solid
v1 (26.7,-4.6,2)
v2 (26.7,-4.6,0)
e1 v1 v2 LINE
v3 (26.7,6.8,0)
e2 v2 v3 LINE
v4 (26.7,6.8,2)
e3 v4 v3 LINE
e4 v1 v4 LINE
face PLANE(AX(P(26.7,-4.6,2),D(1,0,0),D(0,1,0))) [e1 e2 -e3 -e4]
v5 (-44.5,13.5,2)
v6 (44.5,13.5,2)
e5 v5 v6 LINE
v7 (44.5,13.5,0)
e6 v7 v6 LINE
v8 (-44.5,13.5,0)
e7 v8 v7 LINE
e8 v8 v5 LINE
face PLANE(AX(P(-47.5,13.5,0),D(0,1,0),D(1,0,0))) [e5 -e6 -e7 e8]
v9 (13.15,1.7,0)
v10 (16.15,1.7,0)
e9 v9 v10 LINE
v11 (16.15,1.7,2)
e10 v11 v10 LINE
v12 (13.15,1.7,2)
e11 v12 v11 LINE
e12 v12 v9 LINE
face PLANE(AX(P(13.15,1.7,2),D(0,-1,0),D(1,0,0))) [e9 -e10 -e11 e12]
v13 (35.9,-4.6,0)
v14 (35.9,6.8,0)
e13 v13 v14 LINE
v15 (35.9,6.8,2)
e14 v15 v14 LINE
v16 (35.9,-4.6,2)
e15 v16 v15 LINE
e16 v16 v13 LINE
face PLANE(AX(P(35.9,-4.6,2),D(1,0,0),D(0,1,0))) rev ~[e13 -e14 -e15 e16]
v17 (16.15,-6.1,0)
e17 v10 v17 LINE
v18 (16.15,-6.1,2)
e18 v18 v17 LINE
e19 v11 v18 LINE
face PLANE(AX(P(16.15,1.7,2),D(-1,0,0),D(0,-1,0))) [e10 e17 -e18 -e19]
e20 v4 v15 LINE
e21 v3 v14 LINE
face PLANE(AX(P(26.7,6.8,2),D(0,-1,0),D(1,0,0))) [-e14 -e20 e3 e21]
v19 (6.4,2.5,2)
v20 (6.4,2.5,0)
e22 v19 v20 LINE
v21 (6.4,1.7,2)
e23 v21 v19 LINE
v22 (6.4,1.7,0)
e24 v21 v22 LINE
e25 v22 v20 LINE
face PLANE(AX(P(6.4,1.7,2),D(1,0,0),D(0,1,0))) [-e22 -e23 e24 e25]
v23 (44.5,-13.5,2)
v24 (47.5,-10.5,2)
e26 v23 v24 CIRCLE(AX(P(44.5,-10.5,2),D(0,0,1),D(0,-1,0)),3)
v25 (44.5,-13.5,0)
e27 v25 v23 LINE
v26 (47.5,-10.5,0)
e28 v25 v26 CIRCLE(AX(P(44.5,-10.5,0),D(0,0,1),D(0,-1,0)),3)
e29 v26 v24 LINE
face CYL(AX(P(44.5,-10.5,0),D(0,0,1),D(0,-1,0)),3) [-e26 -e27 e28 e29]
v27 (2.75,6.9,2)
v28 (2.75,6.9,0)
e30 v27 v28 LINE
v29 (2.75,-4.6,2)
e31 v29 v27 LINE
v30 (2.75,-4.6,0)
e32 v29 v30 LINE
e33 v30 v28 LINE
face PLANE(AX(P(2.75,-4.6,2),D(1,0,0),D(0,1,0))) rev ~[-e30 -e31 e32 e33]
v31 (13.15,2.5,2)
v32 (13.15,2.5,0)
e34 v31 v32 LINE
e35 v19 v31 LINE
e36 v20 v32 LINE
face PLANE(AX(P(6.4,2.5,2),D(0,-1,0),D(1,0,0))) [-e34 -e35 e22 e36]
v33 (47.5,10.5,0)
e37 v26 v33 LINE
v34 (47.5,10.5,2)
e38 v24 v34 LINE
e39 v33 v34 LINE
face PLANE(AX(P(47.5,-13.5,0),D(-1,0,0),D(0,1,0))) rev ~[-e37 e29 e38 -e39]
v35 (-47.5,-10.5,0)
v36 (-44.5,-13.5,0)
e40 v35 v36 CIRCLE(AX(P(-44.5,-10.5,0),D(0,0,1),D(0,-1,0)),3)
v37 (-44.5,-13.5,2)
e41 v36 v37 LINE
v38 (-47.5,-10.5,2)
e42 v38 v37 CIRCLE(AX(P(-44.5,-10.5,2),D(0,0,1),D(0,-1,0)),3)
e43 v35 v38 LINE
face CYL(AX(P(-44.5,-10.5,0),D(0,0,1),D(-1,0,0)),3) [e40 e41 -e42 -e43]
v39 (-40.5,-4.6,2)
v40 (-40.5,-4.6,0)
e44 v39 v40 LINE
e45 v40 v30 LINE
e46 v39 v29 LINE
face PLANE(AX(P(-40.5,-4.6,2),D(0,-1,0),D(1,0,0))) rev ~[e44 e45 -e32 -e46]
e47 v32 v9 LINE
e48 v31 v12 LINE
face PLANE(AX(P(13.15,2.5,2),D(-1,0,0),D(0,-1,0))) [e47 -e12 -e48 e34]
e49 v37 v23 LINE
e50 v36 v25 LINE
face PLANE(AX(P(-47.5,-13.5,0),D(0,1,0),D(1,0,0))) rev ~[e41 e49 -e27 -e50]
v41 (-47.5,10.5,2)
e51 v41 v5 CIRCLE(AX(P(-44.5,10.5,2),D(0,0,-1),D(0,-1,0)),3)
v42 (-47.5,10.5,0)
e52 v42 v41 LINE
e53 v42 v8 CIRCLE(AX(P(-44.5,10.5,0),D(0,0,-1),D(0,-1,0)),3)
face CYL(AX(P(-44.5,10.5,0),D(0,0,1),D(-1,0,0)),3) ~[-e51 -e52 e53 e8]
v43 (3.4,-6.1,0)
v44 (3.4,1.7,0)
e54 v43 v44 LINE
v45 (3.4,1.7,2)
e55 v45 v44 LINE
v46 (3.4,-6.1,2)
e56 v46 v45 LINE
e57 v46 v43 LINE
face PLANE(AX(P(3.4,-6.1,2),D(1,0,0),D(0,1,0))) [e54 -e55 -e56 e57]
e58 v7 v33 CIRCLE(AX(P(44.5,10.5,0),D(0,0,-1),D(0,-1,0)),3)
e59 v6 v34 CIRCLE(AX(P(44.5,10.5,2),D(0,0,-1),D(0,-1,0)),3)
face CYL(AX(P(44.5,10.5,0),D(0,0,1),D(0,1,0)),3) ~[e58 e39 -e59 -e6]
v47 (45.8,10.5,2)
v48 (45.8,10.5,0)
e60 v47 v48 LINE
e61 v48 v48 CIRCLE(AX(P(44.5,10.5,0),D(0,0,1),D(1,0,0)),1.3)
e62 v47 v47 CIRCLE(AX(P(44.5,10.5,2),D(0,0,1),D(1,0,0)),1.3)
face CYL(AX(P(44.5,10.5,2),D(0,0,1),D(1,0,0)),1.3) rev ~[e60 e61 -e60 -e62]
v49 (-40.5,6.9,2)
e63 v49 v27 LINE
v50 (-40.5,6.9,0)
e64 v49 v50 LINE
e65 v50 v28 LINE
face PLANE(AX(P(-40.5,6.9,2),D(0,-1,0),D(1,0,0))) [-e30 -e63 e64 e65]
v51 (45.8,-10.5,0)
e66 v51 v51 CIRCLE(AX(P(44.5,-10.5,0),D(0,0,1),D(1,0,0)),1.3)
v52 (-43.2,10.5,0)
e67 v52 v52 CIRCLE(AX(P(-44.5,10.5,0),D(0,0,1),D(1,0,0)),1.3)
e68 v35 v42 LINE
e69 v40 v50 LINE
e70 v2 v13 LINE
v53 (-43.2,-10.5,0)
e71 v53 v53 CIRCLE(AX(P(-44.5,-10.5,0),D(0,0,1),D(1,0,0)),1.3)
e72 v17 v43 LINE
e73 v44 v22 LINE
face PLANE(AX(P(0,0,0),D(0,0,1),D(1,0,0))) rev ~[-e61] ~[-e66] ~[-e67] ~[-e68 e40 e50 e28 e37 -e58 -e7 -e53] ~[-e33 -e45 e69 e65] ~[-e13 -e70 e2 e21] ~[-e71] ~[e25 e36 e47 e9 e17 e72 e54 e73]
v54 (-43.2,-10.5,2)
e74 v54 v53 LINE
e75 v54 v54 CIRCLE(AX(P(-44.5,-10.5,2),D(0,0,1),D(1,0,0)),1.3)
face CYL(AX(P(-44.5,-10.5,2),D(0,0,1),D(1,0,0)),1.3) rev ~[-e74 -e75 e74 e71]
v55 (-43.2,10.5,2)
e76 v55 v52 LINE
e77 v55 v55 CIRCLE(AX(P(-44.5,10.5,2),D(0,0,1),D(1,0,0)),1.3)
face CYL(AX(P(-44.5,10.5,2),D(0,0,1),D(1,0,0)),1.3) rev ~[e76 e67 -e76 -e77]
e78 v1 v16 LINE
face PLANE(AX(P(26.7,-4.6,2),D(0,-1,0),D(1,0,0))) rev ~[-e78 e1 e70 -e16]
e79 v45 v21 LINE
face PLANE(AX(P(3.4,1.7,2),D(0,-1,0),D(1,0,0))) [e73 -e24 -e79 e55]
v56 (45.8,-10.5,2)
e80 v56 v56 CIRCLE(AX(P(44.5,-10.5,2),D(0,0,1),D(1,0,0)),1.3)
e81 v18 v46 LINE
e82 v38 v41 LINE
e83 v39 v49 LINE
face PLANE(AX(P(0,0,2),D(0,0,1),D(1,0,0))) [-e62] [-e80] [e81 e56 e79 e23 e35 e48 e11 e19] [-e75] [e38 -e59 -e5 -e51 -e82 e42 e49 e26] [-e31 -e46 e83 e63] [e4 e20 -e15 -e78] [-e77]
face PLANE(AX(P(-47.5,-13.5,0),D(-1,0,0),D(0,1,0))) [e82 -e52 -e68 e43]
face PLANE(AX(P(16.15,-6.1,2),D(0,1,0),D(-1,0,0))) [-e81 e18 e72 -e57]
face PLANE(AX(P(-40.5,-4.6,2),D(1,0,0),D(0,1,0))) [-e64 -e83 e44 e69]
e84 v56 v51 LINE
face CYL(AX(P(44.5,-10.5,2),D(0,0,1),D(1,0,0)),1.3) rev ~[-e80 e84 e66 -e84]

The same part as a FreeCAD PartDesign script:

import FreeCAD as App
import Part
import Sketcher


def edges_at(feature, points):
    """Names of the edges that pass closest to the given points."""
    edges = feature.Shape.Edges
    near = lambda p: min(range(len(edges)), key=lambda i: edges[i].distToShape(Part.Vertex(*p))[0])
    return sorted({f"Edge{near(p) + 1}" for p in points})

doc = App.newDocument("Part")
params = doc.addObject("Spreadsheet::Sheet", "Params")
for row, (alias, value) in enumerate([
    ("sketch1_width", "95 mm"),
    ("sketch1_height", "27 mm"),
    ("pad1_length", "2 mm"),
    ("sketch2_diameter", "2.6 mm"),
    ("pocket1_length", "2 mm"),
    ("fillet_radius", "3 mm"),
    ("sketch3_width", "9.2 mm"),
    ("sketch3_height", "11.4 mm"),
    ("pocket2_length", "2 mm"),
    ("sketch4_height", "11.5 mm"),
    ("sketch4_width", "43.25 mm"),
    ("pocket3_length", "2 mm"),
    ("sketch5_width", "3 mm"),
    ("sketch5_height", "7.8 mm"),
    ("sketch5_height2", "0.8 mm"),
    ("sketch5_width2", "6.75 mm"),
    ("pocket4_length", "2 mm"),
], start=1):
    params.set(f"A{row}", alias)
    params.set(f"B{row}", "=" + value)
    params.setAlias(f"B{row}", alias)

body = doc.addObject("PartDesign::Body", "Body")

# Sketch on XY plane
sketch1 = body.newObject("Sketcher::SketchObject", "Sketch")
sketch1.AttachmentSupport = (doc.getObject("XY_Plane"), [""])
sketch1.MapMode = "FlatFace"
sketch1.addGeometry([
    Part.LineSegment(App.Vector(-48, 14, 0), App.Vector(-48, -14, 0)),
    Part.LineSegment(App.Vector(-48, -14, 0), App.Vector(48, -14, 0)),
    Part.LineSegment(App.Vector(48, -14, 0), App.Vector(48, 14, 0)),
    Part.LineSegment(App.Vector(48, 14, 0), App.Vector(-48, 14, 0)),
], False)
sketch1.addConstraint([
    Sketcher.Constraint("Coincident", 0, 2, 1, 1),
    Sketcher.Constraint("Coincident", 1, 2, 2, 1),
    Sketcher.Constraint("Coincident", 2, 2, 3, 1),
    Sketcher.Constraint("Coincident", 3, 2, 0, 1),
    Sketcher.Constraint("Vertical", 0),
    Sketcher.Constraint("Horizontal", 1),
    Sketcher.Constraint("Vertical", 2),
    Sketcher.Constraint("Horizontal", 3),
    Sketcher.Constraint("Symmetric", 0, 2, 2, 2, -1, 1),
    Sketcher.Constraint("DistanceX", 1, 1, 1, 2, 95.0),
    Sketcher.Constraint("DistanceY", 0, 2, 0, 1, 27.0),
])
sketch1.setExpression("Constraints[9]", "Params.sketch1_width")
sketch1.setExpression("Constraints[10]", "Params.sketch1_height")
pad1 = body.newObject("PartDesign::Pad", "Pad")
pad1.Profile = sketch1
pad1.setExpression("Length", "Params.pad1_length")

# Sketch on XY plane
sketch2 = body.newObject("Sketcher::SketchObject", "Sketch001")
sketch2.AttachmentSupport = (doc.getObject("XY_Plane"), [""])
sketch2.MapMode = "FlatFace"
sketch2.AttachmentOffset = App.Placement(App.Vector(0, 0, 2), App.Rotation())
sketch2.addGeometry([
    Part.Circle(App.Vector(-44.5, 10.5, 0), App.Vector(0, 0, 1), 1.3),
    Part.Circle(App.Vector(44.5, 10.5, 0), App.Vector(0, 0, 1), 1.3),
    Part.Circle(App.Vector(44.5, -10.5, 0), App.Vector(0, 0, 1), 1.3),
    Part.Circle(App.Vector(-44.5, -10.5, 0), App.Vector(0, 0, 1), 1.3),
], False)
sketch2.addConstraint([
    Sketcher.Constraint("Equal", 0, 1),
    Sketcher.Constraint("Equal", 1, 2),
    Sketcher.Constraint("Equal", 2, 3),
    Sketcher.Constraint("Symmetric", 0, 3, 2, 3, -1, 1),
    Sketcher.Constraint("Symmetric", 1, 3, 3, 3, -1, 1),
    Sketcher.Constraint("Symmetric", 0, 3, 1, 3, -2),
    Sketcher.Constraint("Diameter", 0, 2.6),
    Sketcher.Constraint("DistanceX", 0, 3, 1, 3, 89.0),
    Sketcher.Constraint("DistanceY", 2, 3, 1, 3, 21.0),
])
sketch2.setExpression("Constraints[6]", "Params.sketch2_diameter")
pocket1 = body.newObject("PartDesign::Pocket", "Pocket")
pocket1.Profile = sketch2
pocket1.setExpression("Length", "Params.pocket1_length")
doc.recompute()

fillet = body.newObject("PartDesign::Fillet", "Fillet")
fillet.Base = (pocket1, edges_at(pocket1, [
    (-47.5, -13.5, 1),
    (47.5, -13.5, 1),
    (47.5, 13.5, 1),
    (-47.5, 13.5, 1),
]))
fillet.setExpression("Radius", "Params.fillet_radius")

# Sketch on XY plane
sketch3 = body.newObject("Sketcher::SketchObject", "Sketch002")
sketch3.AttachmentSupport = (doc.getObject("XY_Plane"), [""])
sketch3.MapMode = "FlatFace"
sketch3.AttachmentOffset = App.Placement(App.Vector(0, 0, 2), App.Rotation())
sketch3.addGeometry([
    Part.LineSegment(App.Vector(27, 7, 0), App.Vector(27, -5, 0)),
    Part.LineSegment(App.Vector(27, -5, 0), App.Vector(36, -5, 0)),
    Part.LineSegment(App.Vector(36, -5, 0), App.Vector(36, 7, 0)),
    Part.LineSegment(App.Vector(36, 7, 0), App.Vector(27, 7, 0)),
], False)
sketch3.addConstraint([
    Sketcher.Constraint("Coincident", 0, 2, 1, 1),
    Sketcher.Constraint("Coincident", 1, 2, 2, 1),
    Sketcher.Constraint("Coincident", 2, 2, 3, 1),
    Sketcher.Constraint("Coincident", 3, 2, 0, 1),
    Sketcher.Constraint("Vertical", 0),
    Sketcher.Constraint("Horizontal", 1),
    Sketcher.Constraint("Vertical", 2),
    Sketcher.Constraint("Horizontal", 3),
    Sketcher.Constraint("DistanceX", 1, 1, 1, 2, 9.2),
    Sketcher.Constraint("DistanceY", 0, 2, 0, 1, 11.4),
    Sketcher.Constraint("DistanceX", -1, 1, 0, 2, 26.7),
    Sketcher.Constraint("DistanceY", 0, 2, -1, 1, 4.6),
])
sketch3.setExpression("Constraints[8]", "Params.sketch3_width")
sketch3.setExpression("Constraints[9]", "Params.sketch3_height")
pocket2 = body.newObject("PartDesign::Pocket", "Pocket001")
pocket2.Profile = sketch3
pocket2.setExpression("Length", "Params.pocket2_length")

# Sketch on XY plane
sketch4 = body.newObject("Sketcher::SketchObject", "Sketch003")
sketch4.AttachmentSupport = (doc.getObject("XY_Plane"), [""])
sketch4.MapMode = "FlatFace"
sketch4.AttachmentOffset = App.Placement(App.Vector(0, 0, 2), App.Rotation())
sketch4.addGeometry([
    Part.LineSegment(App.Vector(-40, 7, 0), App.Vector(-40, -5, 0)),
    Part.LineSegment(App.Vector(-40, -5, 0), App.Vector(3, -5, 0)),
    Part.LineSegment(App.Vector(3, -5, 0), App.Vector(3, 7, 0)),
    Part.LineSegment(App.Vector(3, 7, 0), App.Vector(-40, 7, 0)),
], False)
sketch4.addConstraint([
    Sketcher.Constraint("Coincident", 0, 2, 1, 1),
    Sketcher.Constraint("Coincident", 1, 2, 2, 1),
    Sketcher.Constraint("Coincident", 2, 2, 3, 1),
    Sketcher.Constraint("Coincident", 3, 2, 0, 1),
    Sketcher.Constraint("Vertical", 0),
    Sketcher.Constraint("Horizontal", 1),
    Sketcher.Constraint("Vertical", 2),
    Sketcher.Constraint("Horizontal", 3),
    Sketcher.Constraint("DistanceY", 0, 2, 0, 1, 11.5),
    Sketcher.Constraint("DistanceX", 1, 1, 1, 2, 43.25),
    Sketcher.Constraint("DistanceX", 0, 2, -1, 1, 40.5),
    Sketcher.Constraint("DistanceY", 0, 2, -1, 1, 4.6),
])
sketch4.setExpression("Constraints[8]", "Params.sketch4_height")
sketch4.setExpression("Constraints[9]", "Params.sketch4_width")
pocket3 = body.newObject("PartDesign::Pocket", "Pocket002")
pocket3.Profile = sketch4
pocket3.setExpression("Length", "Params.pocket3_length")

# Sketch on XY plane
sketch5 = body.newObject("Sketcher::SketchObject", "Sketch004")
sketch5.AttachmentSupport = (doc.getObject("XY_Plane"), [""])
sketch5.MapMode = "FlatFace"
sketch5.AttachmentOffset = App.Placement(App.Vector(0, 0, 2), App.Rotation())
sketch5.addGeometry([
    Part.LineSegment(App.Vector(16.1, -6.1, 0), App.Vector(16.1, 1.7, 0)),  # 0
    Part.LineSegment(App.Vector(16.1, 1.7, 0), App.Vector(13.2, 1.7, 0)),  # 1
    Part.LineSegment(App.Vector(13.2, 1.7, 0), App.Vector(13.2, 2.5, 0)),  # 2
    Part.LineSegment(App.Vector(13.2, 2.5, 0), App.Vector(6.4, 2.5, 0)),  # 3
    Part.LineSegment(App.Vector(6.4, 2.5, 0), App.Vector(6.4, 1.7, 0)),  # 4
    Part.LineSegment(App.Vector(6.4, 1.7, 0), App.Vector(3.4, 1.7, 0)),  # 5
    Part.LineSegment(App.Vector(3.4, 1.7, 0), App.Vector(3.4, -6.1, 0)),  # 6
    Part.LineSegment(App.Vector(3.4, -6.1, 0), App.Vector(16.1, -6.1, 0)),  # 7
], False)
sketch5.addConstraint([
    Sketcher.Constraint("Coincident", 0, 2, 1, 1),
    Sketcher.Constraint("Coincident", 1, 2, 2, 1),
    Sketcher.Constraint("Coincident", 2, 2, 3, 1),
    Sketcher.Constraint("Coincident", 3, 2, 4, 1),
    Sketcher.Constraint("Coincident", 4, 2, 5, 1),
    Sketcher.Constraint("Coincident", 5, 2, 6, 1),
    Sketcher.Constraint("Coincident", 6, 2, 7, 1),
    Sketcher.Constraint("Coincident", 7, 2, 0, 1),
    Sketcher.Constraint("Vertical", 0),
    Sketcher.Constraint("Horizontal", 1),
    Sketcher.Constraint("Vertical", 2),
    Sketcher.Constraint("Horizontal", 3),
    Sketcher.Constraint("Vertical", 4),
    Sketcher.Constraint("Horizontal", 5),
    Sketcher.Constraint("Vertical", 6),
    Sketcher.Constraint("Horizontal", 7),
    Sketcher.Constraint("Horizontal", 1, 2, 4, 2),
    Sketcher.Constraint("Equal", 1, 5),
    Sketcher.Constraint("DistanceX", 1, 2, 1, 1, 3.0),
    Sketcher.Constraint("DistanceY", 0, 1, 0, 2, 7.8),
    Sketcher.Constraint("DistanceY", 2, 1, 2, 2, 0.8),
    Sketcher.Constraint("DistanceX", 3, 2, 3, 1, 6.75),
    Sketcher.Constraint("DistanceY", -1, 1, 0, 2, 1.7),
    Sketcher.Constraint("DistanceX", -1, 1, 3, 2, 6.4),
])
sketch5.setExpression("Constraints[18]", "Params.sketch5_width")
sketch5.setExpression("Constraints[19]", "Params.sketch5_height")
sketch5.setExpression("Constraints[20]", "Params.sketch5_height2")
sketch5.setExpression("Constraints[21]", "Params.sketch5_width2")
pocket4 = body.newObject("PartDesign::Pocket", "Pocket003")
pocket4.Profile = sketch5
pocket4.setExpression("Length", "Params.pocket4_length")

doc.recompute()
